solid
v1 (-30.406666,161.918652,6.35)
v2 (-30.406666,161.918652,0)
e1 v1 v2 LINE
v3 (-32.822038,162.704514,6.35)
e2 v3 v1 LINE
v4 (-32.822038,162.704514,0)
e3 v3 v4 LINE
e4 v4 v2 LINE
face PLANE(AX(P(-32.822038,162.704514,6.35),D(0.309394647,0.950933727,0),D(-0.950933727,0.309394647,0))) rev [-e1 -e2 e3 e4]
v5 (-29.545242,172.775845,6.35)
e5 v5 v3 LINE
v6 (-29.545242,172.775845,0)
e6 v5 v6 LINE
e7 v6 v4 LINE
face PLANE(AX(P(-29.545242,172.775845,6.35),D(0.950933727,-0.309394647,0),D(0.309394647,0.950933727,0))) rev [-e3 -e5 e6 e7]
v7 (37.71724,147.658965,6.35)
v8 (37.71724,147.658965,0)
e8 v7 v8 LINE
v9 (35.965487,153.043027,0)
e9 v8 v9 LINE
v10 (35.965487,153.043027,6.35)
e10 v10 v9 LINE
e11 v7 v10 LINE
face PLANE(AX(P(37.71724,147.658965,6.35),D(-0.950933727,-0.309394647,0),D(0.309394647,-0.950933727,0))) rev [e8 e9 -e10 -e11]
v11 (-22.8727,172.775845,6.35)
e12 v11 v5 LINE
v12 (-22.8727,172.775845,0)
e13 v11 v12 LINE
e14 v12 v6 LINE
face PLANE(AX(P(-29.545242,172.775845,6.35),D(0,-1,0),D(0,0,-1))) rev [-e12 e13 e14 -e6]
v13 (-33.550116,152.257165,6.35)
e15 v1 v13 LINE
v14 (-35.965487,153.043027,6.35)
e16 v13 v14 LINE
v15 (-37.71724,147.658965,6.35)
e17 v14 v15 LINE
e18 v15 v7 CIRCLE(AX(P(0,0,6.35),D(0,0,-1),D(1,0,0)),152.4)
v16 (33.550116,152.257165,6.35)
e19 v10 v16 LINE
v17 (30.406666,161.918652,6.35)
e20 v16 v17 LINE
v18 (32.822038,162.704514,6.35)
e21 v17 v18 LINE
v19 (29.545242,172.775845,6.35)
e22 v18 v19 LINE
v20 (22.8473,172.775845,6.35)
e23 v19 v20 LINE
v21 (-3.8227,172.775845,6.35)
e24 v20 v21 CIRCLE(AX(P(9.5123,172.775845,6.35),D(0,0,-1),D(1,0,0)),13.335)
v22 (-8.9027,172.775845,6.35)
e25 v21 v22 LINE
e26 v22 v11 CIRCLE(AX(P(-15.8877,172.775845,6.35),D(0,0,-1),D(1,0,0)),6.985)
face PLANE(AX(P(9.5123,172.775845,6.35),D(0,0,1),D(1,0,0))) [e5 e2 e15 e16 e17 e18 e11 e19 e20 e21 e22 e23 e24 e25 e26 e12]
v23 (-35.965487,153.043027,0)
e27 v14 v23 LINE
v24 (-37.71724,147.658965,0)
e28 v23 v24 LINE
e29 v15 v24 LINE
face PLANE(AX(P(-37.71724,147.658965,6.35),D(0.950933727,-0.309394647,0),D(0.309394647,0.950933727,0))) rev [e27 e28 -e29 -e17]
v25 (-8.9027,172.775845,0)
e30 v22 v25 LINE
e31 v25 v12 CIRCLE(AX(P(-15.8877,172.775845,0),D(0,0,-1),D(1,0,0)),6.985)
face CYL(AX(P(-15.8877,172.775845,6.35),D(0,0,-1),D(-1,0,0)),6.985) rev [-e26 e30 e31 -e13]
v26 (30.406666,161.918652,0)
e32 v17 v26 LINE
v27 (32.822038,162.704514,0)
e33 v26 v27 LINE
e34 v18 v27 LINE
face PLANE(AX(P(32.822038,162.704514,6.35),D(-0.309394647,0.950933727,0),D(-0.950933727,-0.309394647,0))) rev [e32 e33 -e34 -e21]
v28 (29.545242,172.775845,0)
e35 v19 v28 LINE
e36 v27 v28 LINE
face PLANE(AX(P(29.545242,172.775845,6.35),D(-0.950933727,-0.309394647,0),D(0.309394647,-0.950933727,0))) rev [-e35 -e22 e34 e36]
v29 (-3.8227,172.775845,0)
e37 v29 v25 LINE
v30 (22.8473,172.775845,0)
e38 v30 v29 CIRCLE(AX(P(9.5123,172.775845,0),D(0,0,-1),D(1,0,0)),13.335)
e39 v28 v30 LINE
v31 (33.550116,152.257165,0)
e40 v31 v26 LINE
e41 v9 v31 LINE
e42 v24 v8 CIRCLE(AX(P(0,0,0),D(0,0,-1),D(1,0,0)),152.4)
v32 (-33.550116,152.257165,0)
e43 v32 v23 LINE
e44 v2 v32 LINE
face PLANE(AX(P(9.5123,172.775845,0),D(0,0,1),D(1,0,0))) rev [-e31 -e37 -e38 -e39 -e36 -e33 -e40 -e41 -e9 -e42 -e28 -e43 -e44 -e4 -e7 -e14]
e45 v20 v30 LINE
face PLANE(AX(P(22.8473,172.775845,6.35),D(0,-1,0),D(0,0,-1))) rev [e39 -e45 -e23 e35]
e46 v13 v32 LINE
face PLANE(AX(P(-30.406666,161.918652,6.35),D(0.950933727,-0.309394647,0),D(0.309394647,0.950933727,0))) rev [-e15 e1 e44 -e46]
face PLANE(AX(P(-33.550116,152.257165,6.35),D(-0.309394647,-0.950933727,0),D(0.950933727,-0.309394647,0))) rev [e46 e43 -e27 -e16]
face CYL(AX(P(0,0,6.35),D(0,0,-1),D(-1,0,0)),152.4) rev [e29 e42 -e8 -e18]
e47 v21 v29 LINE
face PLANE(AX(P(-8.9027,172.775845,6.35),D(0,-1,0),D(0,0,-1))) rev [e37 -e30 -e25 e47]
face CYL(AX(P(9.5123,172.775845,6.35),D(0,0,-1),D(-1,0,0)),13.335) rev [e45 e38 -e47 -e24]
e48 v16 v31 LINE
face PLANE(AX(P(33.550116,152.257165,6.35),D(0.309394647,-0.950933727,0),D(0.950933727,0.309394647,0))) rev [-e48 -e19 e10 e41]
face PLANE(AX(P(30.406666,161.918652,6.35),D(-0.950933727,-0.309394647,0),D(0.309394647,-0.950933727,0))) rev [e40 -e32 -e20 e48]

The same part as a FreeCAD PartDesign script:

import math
import FreeCAD as App
import Part
import Sketcher
from FreeCAD import Vector
Q = App.Units.Quantity

doc = App.newDocument("Part")
body = doc.addObject("PartDesign::Body", "Body")

# Sketch on XY plane
sketch1 = body.newObject("Sketcher::SketchObject", "Sketch")
sketch1.AttachmentSupport = (doc.getObject("XY_Plane"), [""])
sketch1.MapMode = "FlatFace"
sketch1.addGeometry([
    Part.LineSegment(Vector(37.7, 147.7, 0), Vector(36, 153, 0)),  # 0
    Part.LineSegment(Vector(36, 153, 0), Vector(33.6, 152.3, 0)),  # 1
    Part.LineSegment(Vector(33.6, 152.3, 0), Vector(30.4, 161.9, 0)),  # 2
    Part.LineSegment(Vector(30.4, 161.9, 0), Vector(32.8, 162.7, 0)),  # 3
    Part.LineSegment(Vector(32.8, 162.7, 0), Vector(29.5, 172.8, 0)),  # 4
    Part.LineSegment(Vector(29.5, 172.8, 0), Vector(22.8, 172.8, 0)),  # 5
    Part.ArcOfCircle(Part.Circle(Vector(9.5, 172.8, 0), Vector(0, 0, 1), 13.3), math.radians(180), math.radians(360)),  # 6
    Part.LineSegment(Vector(-3.8, 172.8, 0), Vector(-8.9, 172.8, 0)),  # 7
    Part.ArcOfCircle(Part.Circle(Vector(-15.9, 172.8, 0), Vector(0, 0, 1), 7), math.radians(180), math.radians(360)),  # 8
    Part.LineSegment(Vector(-22.9, 172.8, 0), Vector(-29.5, 172.8, 0)),  # 9
    Part.LineSegment(Vector(-29.5, 172.8, 0), Vector(-32.8, 162.7, 0)),  # 10
    Part.LineSegment(Vector(-32.8, 162.7, 0), Vector(-30.4, 161.9, 0)),  # 11
    Part.LineSegment(Vector(-30.4, 161.9, 0), Vector(-33.6, 152.3, 0)),  # 12
    Part.LineSegment(Vector(-33.6, 152.3, 0), Vector(-36, 153, 0)),  # 13
    Part.LineSegment(Vector(-36, 153, 0), Vector(-37.7, 147.7, 0)),  # 14
    Part.ArcOfCircle(Part.Circle(Vector(0, 0, 0), Vector(0, 0, 1), 152.4), math.radians(76), math.radians(104)),  # 15
], False)
sketch1.addConstraint([
    Sketcher.Constraint("Coincident", 0, 2, 1, 1),
    Sketcher.Constraint("Coincident", 1, 2, 2, 1),
    Sketcher.Constraint("Coincident", 2, 2, 3, 1),
    Sketcher.Constraint("Coincident", 3, 2, 4, 1),
    Sketcher.Constraint("Coincident", 4, 2, 5, 1),
    Sketcher.Constraint("Coincident", 5, 2, 6, 2),
    Sketcher.Constraint("Coincident", 6, 1, 7, 1),
    Sketcher.Constraint("Coincident", 7, 2, 8, 2),
    Sketcher.Constraint("Coincident", 8, 1, 9, 1),
    Sketcher.Constraint("Coincident", 9, 2, 10, 1),
    Sketcher.Constraint("Coincident", 10, 2, 11, 1),
    Sketcher.Constraint("Coincident", 11, 2, 12, 1),
    Sketcher.Constraint("Coincident", 12, 2, 13, 1),
    Sketcher.Constraint("Coincident", 13, 2, 14, 1),
    Sketcher.Constraint("Coincident", 14, 2, 15, 2),
    Sketcher.Constraint("Coincident", 15, 1, 0, 1),
    Sketcher.Constraint("Horizontal", 5),
    Sketcher.Constraint("Horizontal", 7),
    Sketcher.Constraint("Horizontal", 9),
    Sketcher.Constraint("Coincident", 15, 3, -1, 1),
    Sketcher.Constraint("Symmetric", 4, 2, 9, 2, -2),
    Sketcher.Constraint("Symmetric", 3, 2, 10, 2, -2),
    Sketcher.Constraint("Symmetric", 2, 2, 11, 2, -2),
    Sketcher.Constraint("Symmetric", 1, 2, 12, 2, -2),
    Sketcher.Constraint("Symmetric", 0, 2, 13, 2, -2),
    Sketcher.Constraint("Perpendicular", 0, 1),
    Sketcher.Constraint("Perpendicular", 1, 2),
    Sketcher.Constraint("Perpendicular", 2, 3),
    Sketcher.Constraint("Perpendicular", 3, 4),
    Sketcher.Constraint("Perpendicular", 13, 14),
    Sketcher.Constraint("Horizontal", 6, 3, 8, 3),
    Sketcher.Constraint("Horizontal", 8, 3, 4, 2),
    Sketcher.Constraint("Horizontal", 5, 2, 6, 1),
    Sketcher.Constraint("Equal", 1, 3),
    Sketcher.Constraint("Radius", 15, Q("6 in")),
    Sketcher.Constraint("DistanceX", 7, 2, 7, 1, Q("0.2 in")),
    Sketcher.Constraint("Radius", 6, Q("0.525 in")),
    Sketcher.Constraint("Radius", 8, Q("0.275 in")),
    Sketcher.Constraint("Distance", 1, Q("0.1 in")),
    Sketcher.Constraint("Distance", 2, Q("0.4 in")),
    Sketcher.Constraint("DistanceX", -1, 1, 6, 3, Q("0.3745 in")),
    Sketcher.Constraint("DistanceX", 5, 2, 5, 1, Q("6.697942 mm")),
    Sketcher.Constraint("DistanceY", 14, 2, 12, 2, Q("4.5982 mm")),
    Sketcher.Constraint("DistanceX", 14, 2, 10, 2, Q("4.895202 mm")),
    Sketcher.Constraint("Distance", 4, Q("10.590991 mm")),
])
pad1 = body.newObject("PartDesign::Pad", "Pad")
pad1.Profile = sketch1
pad1.Length = Q("0.25 in")

doc.recompute()
